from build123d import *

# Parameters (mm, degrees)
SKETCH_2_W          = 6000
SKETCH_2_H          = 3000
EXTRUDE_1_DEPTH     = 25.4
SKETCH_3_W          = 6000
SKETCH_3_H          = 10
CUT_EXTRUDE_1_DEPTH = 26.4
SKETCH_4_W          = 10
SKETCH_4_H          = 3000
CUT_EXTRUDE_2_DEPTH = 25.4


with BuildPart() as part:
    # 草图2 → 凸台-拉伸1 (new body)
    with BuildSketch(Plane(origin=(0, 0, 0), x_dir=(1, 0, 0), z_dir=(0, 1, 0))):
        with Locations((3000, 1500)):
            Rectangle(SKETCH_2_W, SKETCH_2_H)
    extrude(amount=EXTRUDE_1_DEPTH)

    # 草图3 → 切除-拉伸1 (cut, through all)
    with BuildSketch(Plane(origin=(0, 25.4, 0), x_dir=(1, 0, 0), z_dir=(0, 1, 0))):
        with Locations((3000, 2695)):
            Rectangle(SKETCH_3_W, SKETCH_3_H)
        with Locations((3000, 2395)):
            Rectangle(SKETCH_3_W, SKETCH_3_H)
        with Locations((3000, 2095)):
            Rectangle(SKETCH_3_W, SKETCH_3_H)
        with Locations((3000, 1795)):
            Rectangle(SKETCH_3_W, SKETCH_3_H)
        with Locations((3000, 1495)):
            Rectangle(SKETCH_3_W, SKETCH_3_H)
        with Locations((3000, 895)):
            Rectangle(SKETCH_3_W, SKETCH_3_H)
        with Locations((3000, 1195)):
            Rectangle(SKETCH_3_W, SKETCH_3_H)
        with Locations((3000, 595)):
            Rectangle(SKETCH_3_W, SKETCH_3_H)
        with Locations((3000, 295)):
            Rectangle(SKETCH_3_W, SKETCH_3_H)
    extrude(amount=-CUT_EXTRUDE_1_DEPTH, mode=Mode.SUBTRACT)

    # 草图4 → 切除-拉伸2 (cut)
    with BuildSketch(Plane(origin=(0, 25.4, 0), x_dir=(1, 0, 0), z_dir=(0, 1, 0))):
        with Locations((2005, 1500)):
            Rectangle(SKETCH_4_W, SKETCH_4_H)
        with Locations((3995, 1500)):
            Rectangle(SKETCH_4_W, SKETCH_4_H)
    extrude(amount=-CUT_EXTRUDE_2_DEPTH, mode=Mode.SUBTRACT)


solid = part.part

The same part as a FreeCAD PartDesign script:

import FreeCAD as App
import Part
import Sketcher
Q = App.Units.Quantity

doc = App.newDocument("Part")
params = doc.addObject("Spreadsheet::Sheet", "Params")
for row, (alias, value) in enumerate([
    ("sketch1_width", "6000 mm"),
    ("sketch1_height", "3000 mm"),
    ("pad1_length", "25.4 mm"),
    ("sketch2_width", "6000 mm"),
    ("sketch2_height", "10 mm"),
    ("sketch3_width", "10 mm"),
    ("sketch3_height", "3000 mm"),
    ("pocket2_length", "25.4 mm"),
], start=1):
    params.set(f"A{row}", alias)
    params.set(f"B{row}", "=" + value)
    params.setAlias(f"B{row}", alias)

body = doc.addObject("PartDesign::Body", "Body")
body.AllowCompound = True

# Sketch on XZ plane
sketch1 = doc.addObject("Sketcher::SketchObject", "Sketch")
body.addObject(sketch1)
sketch1.AttachmentSupport = (doc.XZ_Plane, [""])
sketch1.MapMode = "FlatFace"
sketch1.addGeometry([
    Part.LineSegment(App.Vector(0, -3000, 0), App.Vector(0, 0, 0)),
    Part.LineSegment(App.Vector(0, 0, 0), App.Vector(6000, 0, 0)),
    Part.LineSegment(App.Vector(6000, 0, 0), App.Vector(6000, -3000, 0)),
    Part.LineSegment(App.Vector(6000, -3000, 0), App.Vector(0, -3000, 0)),
], False)
sketch1.addConstraint([
    Sketcher.Constraint("Coincident", 0, 2, 1, 1),
    Sketcher.Constraint("Coincident", 1, 2, 2, 1),
    Sketcher.Constraint("Coincident", 2, 2, 3, 1),
    Sketcher.Constraint("Coincident", 3, 2, 0, 1),
    Sketcher.Constraint("Vertical", 0),
    Sketcher.Constraint("Horizontal", 1),
    Sketcher.Constraint("Vertical", 2),
    Sketcher.Constraint("Horizontal", 3),
    Sketcher.Constraint("Coincident", 0, 2, -1, 1),
    Sketcher.Constraint("DistanceX", 1, 1, 1, 2, Q("6000 mm")),
    Sketcher.Constraint("DistanceY", 0, 1, 0, 2, Q("3000 mm")),
])
sketch1.setExpression("Constraints[9]", "Params.sketch1_width")
sketch1.setExpression("Constraints[10]", "Params.sketch1_height")
pad1 = doc.addObject("PartDesign::Pad", "Pad")
body.addObject(pad1)
pad1.Profile = sketch1
pad1.setExpression("Length", "Params.pad1_length")
pad1.Reversed = True

# Sketch on XZ plane
sketch2 = doc.addObject("Sketcher::SketchObject", "Sketch001")
body.addObject(sketch2)
sketch2.AttachmentSupport = (doc.XZ_Plane, [""])
sketch2.MapMode = "FlatFace"
sketch2.AttachmentOffset = App.Placement(App.Vector(0, 0, -25.4), App.Rotation())
sketch2.addGeometry([
    Part.LineSegment(App.Vector(0, -2700, 0), App.Vector(0, -2690, 0)),  # 0
    Part.LineSegment(App.Vector(0, -2690, 0), App.Vector(6000, -2690, 0)),  # 1
    Part.LineSegment(App.Vector(6000, -2690, 0), App.Vector(6000, -2700, 0)),  # 2
    Part.LineSegment(App.Vector(6000, -2700, 0), App.Vector(0, -2700, 0)),  # 3
    Part.LineSegment(App.Vector(0, -2400, 0), App.Vector(0, -2390, 0)),  # 4
    Part.LineSegment(App.Vector(0, -2390, 0), App.Vector(6000, -2390, 0)),  # 5
    Part.LineSegment(App.Vector(6000, -2390, 0), App.Vector(6000, -2400, 0)),  # 6
    Part.LineSegment(App.Vector(6000, -2400, 0), App.Vector(0, -2400, 0)),  # 7
    Part.LineSegment(App.Vector(0, -2100, 0), App.Vector(0, -2090, 0)),  # 8
    Part.LineSegment(App.Vector(0, -2090, 0), App.Vector(6000, -2090, 0)),  # 9
    Part.LineSegment(App.Vector(6000, -2090, 0), App.Vector(6000, -2100, 0)),  # 10
    Part.LineSegment(App.Vector(6000, -2100, 0), App.Vector(0, -2100, 0)),  # 11
    Part.LineSegment(App.Vector(0, -1800, 0), App.Vector(0, -1790, 0)),  # 12
    Part.LineSegment(App.Vector(0, -1790, 0), App.Vector(6000, -1790, 0)),  # 13
    Part.LineSegment(App.Vector(6000, -1790, 0), App.Vector(6000, -1800, 0)),  # 14
    Part.LineSegment(App.Vector(6000, -1800, 0), App.Vector(0, -1800, 0)),  # 15
    Part.LineSegment(App.Vector(0, -1500, 0), App.Vector(0, -1490, 0)),  # 16
    Part.LineSegment(App.Vector(0, -1490, 0), App.Vector(6000, -1490, 0)),  # 17
    Part.LineSegment(App.Vector(6000, -1490, 0), App.Vector(6000, -1500, 0)),  # 18
    Part.LineSegment(App.Vector(6000, -1500, 0), App.Vector(0, -1500, 0)),  # 19
    Part.LineSegment(App.Vector(0, -900, 0), App.Vector(0, -890, 0)),  # 20
    Part.LineSegment(App.Vector(0, -890, 0), App.Vector(6000, -890, 0)),  # 21
    Part.LineSegment(App.Vector(6000, -890, 0), App.Vector(6000, -900, 0)),  # 22
    Part.LineSegment(App.Vector(6000, -900, 0), App.Vector(0, -900, 0)),  # 23
    Part.LineSegment(App.Vector(0, -1200, 0), App.Vector(0, -1190, 0)),  # 24
    Part.LineSegment(App.Vector(0, -1190, 0), App.Vector(6000, -1190, 0)),  # 25
    Part.LineSegment(App.Vector(6000, -1190, 0), App.Vector(6000, -1200, 0)),  # 26
    Part.LineSegment(App.Vector(6000, -1200, 0), App.Vector(0, -1200, 0)),  # 27
    Part.LineSegment(App.Vector(0, -600, 0), App.Vector(0, -590, 0)),  # 28
    Part.LineSegment(App.Vector(0, -590, 0), App.Vector(6000, -590, 0)),  # 29
    Part.LineSegment(App.Vector(6000, -590, 0), App.Vector(6000, -600, 0)),  # 30
    Part.LineSegment(App.Vector(6000, -600, 0), App.Vector(0, -600, 0)),  # 31
    Part.LineSegment(App.Vector(0, -300, 0), App.Vector(0, -290, 0)),  # 32
    Part.LineSegment(App.Vector(0, -290, 0), App.Vector(6000, -290, 0)),  # 33
    Part.LineSegment(App.Vector(6000, -290, 0), App.Vector(6000, -300, 0)),  # 34
    Part.LineSegment(App.Vector(6000, -300, 0), App.Vector(0, -300, 0)),  # 35
], False)
sketch2.addConstraint([
    Sketcher.Constraint("Coincident", 0, 2, 1, 1),
    Sketcher.Constraint("Coincident", 1, 2, 2, 1),
    Sketcher.Constraint("Coincident", 2, 2, 3, 1),
    Sketcher.Constraint("Coincident", 3, 2, 0, 1),
    Sketcher.Constraint("Coincident", 4, 2, 5, 1),
    Sketcher.Constraint("Coincident", 5, 2, 6, 1),
    Sketcher.Constraint("Coincident", 6, 2, 7, 1),
    Sketcher.Constraint("Coincident", 7, 2, 4, 1),
    Sketcher.Constraint("Coincident", 8, 2, 9, 1),
    Sketcher.Constraint("Coincident", 9, 2, 10, 1),
    Sketcher.Constraint("Coincident", 10, 2, 11, 1),
    Sketcher.Constraint("Coincident", 11, 2, 8, 1),
    Sketcher.Constraint("Coincident", 12, 2, 13, 1),
    Sketcher.Constraint("Coincident", 13, 2, 14, 1),
    Sketcher.Constraint("Coincident", 14, 2, 15, 1),
    Sketcher.Constraint("Coincident", 15, 2, 12, 1),
    Sketcher.Constraint("Coincident", 16, 2, 17, 1),
    Sketcher.Constraint("Coincident", 17, 2, 18, 1),
    Sketcher.Constraint("Coincident", 18, 2, 19, 1),
    Sketcher.Constraint("Coincident", 19, 2, 16, 1),
    Sketcher.Constraint("Coincident", 20, 2, 21, 1),
    Sketcher.Constraint("Coincident", 21, 2, 22, 1),
    Sketcher.Constraint("Coincident", 22, 2, 23, 1),
    Sketcher.Constraint("Coincident", 23, 2, 20, 1),
    Sketcher.Constraint("Coincident", 24, 2, 25, 1),
    Sketcher.Constraint("Coincident", 25, 2, 26, 1),
    Sketcher.Constraint("Coincident", 26, 2, 27, 1),
    Sketcher.Constraint("Coincident", 27, 2, 24, 1),
    Sketcher.Constraint("Coincident", 28, 2, 29, 1),
    Sketcher.Constraint("Coincident", 29, 2, 30, 1),
    Sketcher.Constraint("Coincident", 30, 2, 31, 1),
    Sketcher.Constraint("Coincident", 31, 2, 28, 1),
    Sketcher.Constraint("Coincident", 32, 2, 33, 1),
    Sketcher.Constraint("Coincident", 33, 2, 34, 1),
    Sketcher.Constraint("Coincident", 34, 2, 35, 1),
    Sketcher.Constraint("Coincident", 35, 2, 32, 1),
    Sketcher.Constraint("Vertical", 0),
    Sketcher.Constraint("Horizontal", 1),
    Sketcher.Constraint("Vertical", 2),
    Sketcher.Constraint("Horizontal", 3),
    Sketcher.Constraint("Vertical", 4),
    Sketcher.Constraint("Horizontal", 5),
    Sketcher.Constraint("Vertical", 6),
    Sketcher.Constraint("Horizontal", 7),
    Sketcher.Constraint("Vertical", 8),
    Sketcher.Constraint("Horizontal", 9),
    Sketcher.Constraint("Vertical", 10),
    Sketcher.Constraint("Horizontal", 11),
    Sketcher.Constraint("Vertical", 12),
    Sketcher.Constraint("Horizontal", 13),
    Sketcher.Constraint("Vertical", 14),
    Sketcher.Constraint("Horizontal", 15),
    Sketcher.Constraint("Vertical", 16),
    Sketcher.Constraint("Horizontal", 17),
    Sketcher.Constraint("Vertical", 18),
    Sketcher.Constraint("Horizontal", 19),
    Sketcher.Constraint("Vertical", 20),
    Sketcher.Constraint("Horizontal", 21),
    Sketcher.Constraint("Vertical", 22),
    Sketcher.Constraint("Horizontal", 23),
    Sketcher.Constraint("Vertical", 24),
    Sketcher.Constraint("Horizontal", 25),
    Sketcher.Constraint("Vertical", 26),
    Sketcher.Constraint("Horizontal", 27),
    Sketcher.Constraint("Vertical", 28),
    Sketcher.Constraint("Horizontal", 29),
    Sketcher.Constraint("Vertical", 30),
    Sketcher.Constraint("Horizontal", 31),
    Sketcher.Constraint("Vertical", 32),
    Sketcher.Constraint("Horizontal", 33),
    Sketcher.Constraint("Vertical", 34),
    Sketcher.Constraint("Horizontal", 35),
    Sketcher.Constraint("PointOnObject", 0, 2, -2),
    Sketcher.Constraint("PointOnObject", 4, 2, -2),
    Sketcher.Constraint("PointOnObject", 8, 2, -2),
    Sketcher.Constraint("PointOnObject", 12, 2, -2),
    Sketcher.Constraint("PointOnObject", 16, 2, -2),
    Sketcher.Constraint("PointOnObject", 20, 2, -2),
    Sketcher.Constraint("PointOnObject", 24, 2, -2),
    Sketcher.Constraint("PointOnObject", 28, 2, -2),
    Sketcher.Constraint("PointOnObject", 32, 2, -2),
    Sketcher.Constraint("Vertical", 2, 2, 5, 2),
    Sketcher.Constraint("Vertical", 6, 2, 9, 2),
    Sketcher.Constraint("Vertical", 10, 2, 13, 2),
    Sketcher.Constraint("Vertical", 14, 2, 17, 2),
    Sketcher.Constraint("Vertical", 18, 2, 21, 2),
    Sketcher.Constraint("Vertical", 22, 2, 25, 2),
    Sketcher.Constraint("Vertical", 26, 2, 29, 2),
    Sketcher.Constraint("Vertical", 30, 2, 33, 2),
    Sketcher.Constraint("Equal", 2, 4),
    Sketcher.Constraint("Equal", 6, 8),
    Sketcher.Constraint("Equal", 10, 12),
    Sketcher.Constraint("Equal", 14, 16),
    Sketcher.Constraint("Equal", 18, 20),
    Sketcher.Constraint("Equal", 22, 24),
    Sketcher.Constraint("Equal", 26, 28),
    Sketcher.Constraint("Equal", 30, 32),
    Sketcher.Constraint("DistanceX", 1, 1, 1, 2, Q("6000 mm")),
    Sketcher.Constraint("DistanceY", 0, 1, 0, 2, Q("10 mm")),
    Sketcher.Constraint("DistanceY", 0, 2, -1, 1, Q("2690 mm")),
    Sketcher.Constraint("DistanceY", 4, 2, -1, 1, Q("2390 mm")),
    Sketcher.Constraint("DistanceY", 8, 2, -1, 1, Q("2090 mm")),
    Sketcher.Constraint("DistanceY", 12, 2, -1, 1, Q("1790 mm")),
    Sketcher.Constraint("DistanceY", 16, 2, -1, 1, Q("1490 mm")),
    Sketcher.Constraint("DistanceY", 20, 2, -1, 1, Q("890 mm")),
    Sketcher.Constraint("DistanceY", 24, 2, -1, 1, Q("1190 mm")),
    Sketcher.Constraint("DistanceY", 28, 2, -1, 1, Q("590 mm")),
    Sketcher.Constraint("DistanceY", 32, 2, -1, 1, Q("290 mm")),
])
sketch2.setExpression("Constraints[97]", "Params.sketch2_width")
sketch2.setExpression("Constraints[98]", "Params.sketch2_height")
pocket1 = doc.addObject("PartDesign::Pocket", "Pocket")
body.addObject(pocket1)
pocket1.Profile = sketch2
pocket1.Type = "ThroughAll"
pocket1.Reversed = True

# Sketch on XZ plane
sketch3 = doc.addObject("Sketcher::SketchObject", "Sketch002")
body.addObject(sketch3)
sketch3.AttachmentSupport = (doc.XZ_Plane, [""])
sketch3.MapMode = "FlatFace"
sketch3.AttachmentOffset = App.Placement(App.Vector(0, 0, -25.4), App.Rotation())
sketch3.addGeometry([
    Part.LineSegment(App.Vector(2000, -3000, 0), App.Vector(2000, 0, 0)),  # 0
    Part.LineSegment(App.Vector(2000, 0, 0), App.Vector(2010, 0, 0)),  # 1
    Part.LineSegment(App.Vector(2010, 0, 0), App.Vector(2010, -3000, 0)),  # 2
    Part.LineSegment(App.Vector(2010, -3000, 0), App.Vector(2000, -3000, 0)),  # 3
    Part.LineSegment(App.Vector(3990, -3000, 0), App.Vector(3990, 0, 0)),  # 4
    Part.LineSegment(App.Vector(3990, 0, 0), App.Vector(4000, 0, 0)),  # 5
    Part.LineSegment(App.Vector(4000, 0, 0), App.Vector(4000, -3000, 0)),  # 6
    Part.LineSegment(App.Vector(4000, -3000, 0), App.Vector(3990, -3000, 0)),  # 7
], False)
sketch3.addConstraint([
    Sketcher.Constraint("Coincident", 0, 2, 1, 1),
    Sketcher.Constraint("Coincident", 1, 2, 2, 1),
    Sketcher.Constraint("Coincident", 2, 2, 3, 1),
    Sketcher.Constraint("Coincident", 3, 2, 0, 1),
    Sketcher.Constraint("Coincident", 4, 2, 5, 1),
    Sketcher.Constraint("Coincident", 5, 2, 6, 1),
    Sketcher.Constraint("Coincident", 6, 2, 7, 1),
    Sketcher.Constraint("Coincident", 7, 2, 4, 1),
    Sketcher.Constraint("Vertical", 0),
    Sketcher.Constraint("Horizontal", 1),
    Sketcher.Constraint("Vertical", 2),
    Sketcher.Constraint("Horizontal", 3),
    Sketcher.Constraint("Vertical", 4),
    Sketcher.Constraint("Horizontal", 5),
    Sketcher.Constraint("Vertical", 6),
    Sketcher.Constraint("Horizontal", 7),
    Sketcher.Constraint("PointOnObject", 0, 2, -1),
    Sketcher.Constraint("PointOnObject", 4, 2, -1),
    Sketcher.Constraint("Horizontal", 3, 2, 6, 2),
    Sketcher.Constraint("Equal", 3, 5),
    Sketcher.Constraint("DistanceX", 1, 1, 1, 2, Q("10 mm")),
    Sketcher.Constraint("DistanceY", 0, 1, 0, 2, Q("3000 mm")),
    Sketcher.Constraint("DistanceX", -1, 1, 0, 2, Q("2000 mm")),
    Sketcher.Constraint("DistanceX", -1, 1, 4, 2, Q("3990 mm")),
])
sketch3.setExpression("Constraints[20]", "Params.sketch3_width")
sketch3.setExpression("Constraints[21]", "Params.sketch3_height")
pocket2 = doc.addObject("PartDesign::Pocket", "Pocket001")
body.addObject(pocket2)
pocket2.Profile = sketch3
pocket2.setExpression("Length", "Params.pocket2_length")
pocket2.Reversed = True

doc.recompute()
